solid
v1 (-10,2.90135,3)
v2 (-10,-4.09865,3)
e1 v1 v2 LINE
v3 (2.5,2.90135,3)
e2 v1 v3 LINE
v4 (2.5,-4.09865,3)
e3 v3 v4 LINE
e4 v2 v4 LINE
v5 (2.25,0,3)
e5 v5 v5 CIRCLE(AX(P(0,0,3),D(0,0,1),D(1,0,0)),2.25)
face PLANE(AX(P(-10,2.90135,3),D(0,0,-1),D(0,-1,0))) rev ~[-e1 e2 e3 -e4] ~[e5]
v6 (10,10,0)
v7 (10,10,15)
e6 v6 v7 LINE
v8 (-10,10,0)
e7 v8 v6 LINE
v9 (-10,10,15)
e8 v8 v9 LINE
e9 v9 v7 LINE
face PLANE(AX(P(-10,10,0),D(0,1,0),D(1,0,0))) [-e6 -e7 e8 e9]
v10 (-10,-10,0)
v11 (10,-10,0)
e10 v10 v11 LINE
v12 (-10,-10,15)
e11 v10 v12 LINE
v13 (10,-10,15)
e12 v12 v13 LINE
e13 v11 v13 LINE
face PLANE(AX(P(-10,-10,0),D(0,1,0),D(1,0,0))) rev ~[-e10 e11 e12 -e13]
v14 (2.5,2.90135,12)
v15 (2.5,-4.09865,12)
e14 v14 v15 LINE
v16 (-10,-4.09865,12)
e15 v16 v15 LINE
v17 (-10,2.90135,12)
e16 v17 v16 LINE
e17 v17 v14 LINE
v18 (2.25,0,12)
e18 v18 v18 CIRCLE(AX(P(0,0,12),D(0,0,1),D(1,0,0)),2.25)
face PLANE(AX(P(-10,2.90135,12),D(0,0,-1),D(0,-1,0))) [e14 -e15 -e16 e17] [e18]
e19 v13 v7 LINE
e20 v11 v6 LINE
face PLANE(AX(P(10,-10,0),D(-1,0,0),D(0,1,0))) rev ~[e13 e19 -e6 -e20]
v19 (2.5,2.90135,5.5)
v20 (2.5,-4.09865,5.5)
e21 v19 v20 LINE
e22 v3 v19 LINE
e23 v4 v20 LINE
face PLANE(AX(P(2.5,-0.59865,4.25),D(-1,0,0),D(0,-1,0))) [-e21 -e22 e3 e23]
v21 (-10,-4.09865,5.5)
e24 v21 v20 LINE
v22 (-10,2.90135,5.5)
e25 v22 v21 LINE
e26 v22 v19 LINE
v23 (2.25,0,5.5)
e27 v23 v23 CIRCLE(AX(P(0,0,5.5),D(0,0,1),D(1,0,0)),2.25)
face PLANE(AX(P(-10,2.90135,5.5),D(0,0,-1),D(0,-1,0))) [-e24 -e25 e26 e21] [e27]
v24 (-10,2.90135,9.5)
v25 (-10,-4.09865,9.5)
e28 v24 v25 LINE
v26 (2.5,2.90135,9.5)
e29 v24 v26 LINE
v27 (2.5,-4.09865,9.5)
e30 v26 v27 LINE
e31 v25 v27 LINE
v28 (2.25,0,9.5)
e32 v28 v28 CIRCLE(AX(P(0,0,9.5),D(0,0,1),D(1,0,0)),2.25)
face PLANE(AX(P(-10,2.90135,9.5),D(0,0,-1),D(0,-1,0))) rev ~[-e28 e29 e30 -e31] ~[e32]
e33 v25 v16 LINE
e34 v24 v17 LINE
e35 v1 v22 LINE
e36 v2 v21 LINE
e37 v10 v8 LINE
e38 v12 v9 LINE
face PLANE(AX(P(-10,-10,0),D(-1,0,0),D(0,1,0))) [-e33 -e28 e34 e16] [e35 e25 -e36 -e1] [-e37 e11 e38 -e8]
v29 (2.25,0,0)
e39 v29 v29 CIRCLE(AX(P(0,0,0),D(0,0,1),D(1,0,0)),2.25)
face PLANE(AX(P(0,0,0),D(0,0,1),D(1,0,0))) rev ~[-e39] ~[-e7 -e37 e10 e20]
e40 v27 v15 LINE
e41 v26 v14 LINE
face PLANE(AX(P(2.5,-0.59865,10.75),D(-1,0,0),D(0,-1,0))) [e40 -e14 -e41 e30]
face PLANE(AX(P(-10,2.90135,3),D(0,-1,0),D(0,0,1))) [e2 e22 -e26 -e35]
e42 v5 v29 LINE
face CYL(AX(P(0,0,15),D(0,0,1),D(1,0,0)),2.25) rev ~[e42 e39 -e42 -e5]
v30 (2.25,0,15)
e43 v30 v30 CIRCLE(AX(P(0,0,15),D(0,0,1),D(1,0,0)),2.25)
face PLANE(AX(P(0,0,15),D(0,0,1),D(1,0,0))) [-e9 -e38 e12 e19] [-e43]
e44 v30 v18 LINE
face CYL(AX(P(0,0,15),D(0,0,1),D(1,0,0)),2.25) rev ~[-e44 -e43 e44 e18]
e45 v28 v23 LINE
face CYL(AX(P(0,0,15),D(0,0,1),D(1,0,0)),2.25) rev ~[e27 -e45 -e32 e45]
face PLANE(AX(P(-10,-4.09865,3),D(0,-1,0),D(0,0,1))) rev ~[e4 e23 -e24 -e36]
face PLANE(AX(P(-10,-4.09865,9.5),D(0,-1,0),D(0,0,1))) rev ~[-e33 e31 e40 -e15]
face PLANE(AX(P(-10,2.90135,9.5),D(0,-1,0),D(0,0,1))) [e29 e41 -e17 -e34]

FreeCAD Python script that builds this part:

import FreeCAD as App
import Part
import Sketcher
from FreeCAD import Vector
Q = App.Units.Quantity


def add_polygon(sketch, points):
    """Adds a closed chain of lines whose ends are joined by coincident constraints."""
    first, n = sketch.GeometryCount, len(points)
    for a, b in zip(points, points[1:] + points[:1]):
        sketch.addGeometry(Part.LineSegment(App.Vector(*a, 0), App.Vector(*b, 0)), False)
    for i in range(n):
        sketch.addConstraint(Sketcher.Constraint("Coincident", first + i, 2, first + (i + 1) % n, 1))

doc = App.newDocument("Part")
body = doc.addObject("PartDesign::Body", "Body")

sketch1 = doc.addObject("Sketcher::SketchObject", "Sketch")
body.addObject(sketch1)
sketch1.AttachmentSupport = (doc.XY_Plane, [""])
sketch1.MapMode = "FlatFace"
add_polygon(sketch1, [(-10, 10), (-10, -10), (10, -10), (10, 10)])
sketch1.addConstraint([
    Sketcher.Constraint("Vertical", 0),
    Sketcher.Constraint("Horizontal", 1),
    Sketcher.Constraint("Vertical", 2),
    Sketcher.Constraint("Horizontal", 3),
    Sketcher.Constraint("Symmetric", 0, 2, 2, 2, -1, 1),
    Sketcher.Constraint("Equal", 3, 0),
    Sketcher.Constraint("DistanceX", 1, 1, 1, 2, Q("20 mm")),
])
pad1 = doc.addObject("PartDesign::Pad", "Pad")
body.addObject(pad1)
pad1.Profile = sketch1
pad1.Length = 15

sketch2 = doc.addObject("Sketcher::SketchObject", "Sketch001")
body.addObject(sketch2)
sketch2.AttachmentSupport = (doc.XY_Plane, [""])
sketch2.MapMode = "FlatFace"
sketch2.AttachmentOffset = App.Placement(Vector(0, 0, 15), App.Rotation())
sketch2.addGeometry(Part.Circle(Vector(0, 0, 0), Vector(0, 0, 1), 2.2), False)
sketch2.addConstraint([
    Sketcher.Constraint("Coincident", 0, 3, -1, 1),
    Sketcher.Constraint("Diameter", 0, Q("4.5 mm")),
])
pocket1 = doc.addObject("PartDesign::Pocket", "Pocket")
body.addObject(pocket1)
pocket1.Profile = sketch2
pocket1.Type = "ThroughAll"

sketch3 = doc.addObject("Sketcher::SketchObject", "Sketch002")
body.addObject(sketch3)
sketch3.AttachmentSupport = (doc.YZ_Plane, [""])
sketch3.MapMode = "FlatFace"
sketch3.AttachmentOffset = App.Placement(Vector(0, 0, -10), App.Rotation())
add_polygon(sketch3, [(2.9, 5.5), (2.9, 3), (-4.1, 3), (-4.1, 5.5)])
add_polygon(sketch3, [(2.9, 12), (2.9, 9.5), (-4.1, 9.5), (-4.1, 12)])
sketch3.addConstraint([
    Sketcher.Constraint("Vertical", 0),
    Sketcher.Constraint("Horizontal", 1),
    Sketcher.Constraint("Vertical", 2),
    Sketcher.Constraint("Horizontal", 3),
    Sketcher.Constraint("Vertical", 4),
    Sketcher.Constraint("Horizontal", 5),
    Sketcher.Constraint("Vertical", 6),
    Sketcher.Constraint("Horizontal", 7),
    Sketcher.Constraint("Vertical", 3, 2, 4, 2),
    Sketcher.Constraint("Vertical", 2, 2, 5, 2),
    Sketcher.Constraint("Equal", 2, 4),
    Sketcher.Constraint("DistanceX", 1, 2, 1, 1, Q("7 mm")),
    Sketcher.Constraint("DistanceY", 0, 2, 0, 1, Q("2.5 mm")),
    Sketcher.Constraint("DistanceY", -1, 1, 0, 2, Q("3 mm")),
    Sketcher.Constraint("DistanceY", -1, 1, 6, 2, Q("12 mm")),
    Sketcher.Constraint("DistanceX", -1, 1, 0, 2, Q("2.90135 mm")),
])
pocket2 = doc.addObject("PartDesign::Pocket", "Pocket001")
body.addObject(pocket2)
pocket2.Profile = sketch3
pocket2.Length = 12.5
pocket2.Reversed = True

doc.recompute()
